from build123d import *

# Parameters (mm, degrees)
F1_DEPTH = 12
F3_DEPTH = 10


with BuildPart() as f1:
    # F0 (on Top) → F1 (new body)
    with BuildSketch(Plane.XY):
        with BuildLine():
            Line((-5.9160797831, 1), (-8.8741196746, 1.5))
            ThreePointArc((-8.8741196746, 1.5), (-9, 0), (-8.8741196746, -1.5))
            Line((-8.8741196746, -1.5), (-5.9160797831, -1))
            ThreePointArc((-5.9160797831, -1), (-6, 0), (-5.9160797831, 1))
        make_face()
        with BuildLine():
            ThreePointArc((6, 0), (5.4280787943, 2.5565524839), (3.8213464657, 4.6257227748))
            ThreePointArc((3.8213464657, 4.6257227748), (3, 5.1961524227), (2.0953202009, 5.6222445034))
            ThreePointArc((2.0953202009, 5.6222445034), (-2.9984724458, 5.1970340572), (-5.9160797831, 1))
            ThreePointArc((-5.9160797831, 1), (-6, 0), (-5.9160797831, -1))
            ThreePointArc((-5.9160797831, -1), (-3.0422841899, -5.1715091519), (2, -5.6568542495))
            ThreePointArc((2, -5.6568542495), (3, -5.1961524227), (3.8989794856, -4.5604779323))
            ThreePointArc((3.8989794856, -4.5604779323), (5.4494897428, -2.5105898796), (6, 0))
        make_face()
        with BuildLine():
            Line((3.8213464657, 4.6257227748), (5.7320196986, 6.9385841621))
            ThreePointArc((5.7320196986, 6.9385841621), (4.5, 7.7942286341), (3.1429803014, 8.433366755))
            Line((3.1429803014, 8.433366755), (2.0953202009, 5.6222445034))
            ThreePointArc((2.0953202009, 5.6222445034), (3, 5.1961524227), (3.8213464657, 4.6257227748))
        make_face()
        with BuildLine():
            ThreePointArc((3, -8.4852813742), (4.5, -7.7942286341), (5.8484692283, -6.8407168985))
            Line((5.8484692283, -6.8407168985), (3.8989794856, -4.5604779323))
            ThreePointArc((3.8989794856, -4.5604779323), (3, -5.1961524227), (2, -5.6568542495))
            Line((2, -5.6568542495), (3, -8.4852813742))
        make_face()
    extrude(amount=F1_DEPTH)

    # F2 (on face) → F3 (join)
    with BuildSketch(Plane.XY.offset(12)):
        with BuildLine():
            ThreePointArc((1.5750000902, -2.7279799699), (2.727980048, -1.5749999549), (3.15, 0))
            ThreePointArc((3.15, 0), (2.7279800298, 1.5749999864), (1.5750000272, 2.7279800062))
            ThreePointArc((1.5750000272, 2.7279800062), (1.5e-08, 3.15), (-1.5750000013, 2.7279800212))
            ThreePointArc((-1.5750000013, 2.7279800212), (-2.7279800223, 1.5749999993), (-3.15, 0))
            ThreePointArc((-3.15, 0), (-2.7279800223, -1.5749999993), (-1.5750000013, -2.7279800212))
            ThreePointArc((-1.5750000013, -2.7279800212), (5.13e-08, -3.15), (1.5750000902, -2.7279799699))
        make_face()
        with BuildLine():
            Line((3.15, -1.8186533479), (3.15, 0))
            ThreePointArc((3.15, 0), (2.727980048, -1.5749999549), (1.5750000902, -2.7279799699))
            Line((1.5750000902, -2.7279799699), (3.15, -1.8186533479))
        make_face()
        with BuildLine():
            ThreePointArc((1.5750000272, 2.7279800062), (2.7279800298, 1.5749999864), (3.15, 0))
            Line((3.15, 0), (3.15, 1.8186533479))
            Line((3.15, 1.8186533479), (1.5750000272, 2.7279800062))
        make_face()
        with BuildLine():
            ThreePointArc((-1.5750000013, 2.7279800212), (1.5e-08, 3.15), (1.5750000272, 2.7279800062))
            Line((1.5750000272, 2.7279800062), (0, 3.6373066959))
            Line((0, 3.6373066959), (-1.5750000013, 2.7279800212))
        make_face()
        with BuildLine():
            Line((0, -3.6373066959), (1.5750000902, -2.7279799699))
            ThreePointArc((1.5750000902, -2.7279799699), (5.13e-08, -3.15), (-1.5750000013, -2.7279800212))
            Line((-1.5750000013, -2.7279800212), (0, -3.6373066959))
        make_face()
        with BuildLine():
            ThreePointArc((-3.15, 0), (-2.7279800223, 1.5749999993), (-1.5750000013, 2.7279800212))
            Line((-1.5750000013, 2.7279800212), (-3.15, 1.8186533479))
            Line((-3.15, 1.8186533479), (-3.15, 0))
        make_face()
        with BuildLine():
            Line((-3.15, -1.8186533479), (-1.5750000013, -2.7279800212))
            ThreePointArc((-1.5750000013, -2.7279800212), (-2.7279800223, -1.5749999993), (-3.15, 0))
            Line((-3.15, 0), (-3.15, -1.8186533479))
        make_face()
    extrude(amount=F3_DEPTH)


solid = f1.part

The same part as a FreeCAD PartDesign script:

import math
import FreeCAD as App
import Part
import Sketcher

V = App.Vector
Q = App.Units.Quantity

doc = App.newDocument("Part")
body = doc.addObject("PartDesign::Body", "Body")

# Sketch on XY plane
sketch1 = body.newObject("Sketcher::SketchObject", "Sketch")
sketch1.AttachmentSupport = (doc.getObject("XY_Plane"), [""])
sketch1.MapMode = "FlatFace"
sketch1.addGeometry([
    Part.LineSegment(V(-5.91608, 1, 0), V(-8.87412, 1.5, 0)),  # 0
    Part.ArcOfCircle(Part.Circle(V(0, 0, 0), V(0, 0, 1), 9), math.radians(170.405932), math.radians(189.594068)),  # 1
    Part.LineSegment(V(-8.87412, -1.5, 0), V(-5.91608, -1, 0)),  # 2
    Part.ArcOfCircle(Part.Circle(V(0, 0, 0), V(0, 0, 1), 6), math.radians(-170.405932), math.radians(-70.528779)),  # 3
    Part.LineSegment(V(2, -5.656854, 0), V(3, -8.485281, 0)),  # 4
    Part.ArcOfCircle(Part.Circle(V(0, 0, 0), V(0, 0, 1), 9), math.radians(-70.528779), math.radians(-49.471221)),  # 5
    Part.LineSegment(V(5.848469, -6.840717, 0), V(3.898979, -4.560478, 0)),  # 6
    Part.ArcOfCircle(Part.Circle(V(0, 0, 0), V(0, 0, 1), 6), math.radians(-49.471221), math.radians(0)),  # 7
    Part.ArcOfCircle(Part.Circle(V(0, 0, 0), V(0, 0, 1), 6), math.radians(0), math.radians(50.439616)),  # 8
    Part.LineSegment(V(3.821346, 4.625723, 0), V(5.73202, 6.938584, 0)),  # 9
    Part.ArcOfCircle(Part.Circle(V(0, 0, 0), V(0, 0, 1), 9), math.radians(50.439616), math.radians(69.560384)),  # 10
    Part.LineSegment(V(3.14298, 8.433367, 0), V(2.09532, 5.622245, 0)),  # 11
    Part.ArcOfCircle(Part.Circle(V(0, 0, 0), V(0, 0, 1), 6), math.radians(69.560384), math.radians(170.405932)),  # 12
], False)
sketch1.addConstraint([
    Sketcher.Constraint("Coincident", 0, 2, 1, 1),
    Sketcher.Constraint("Coincident", 1, 2, 2, 1),
    Sketcher.Constraint("Coincident", 2, 2, 3, 1),
    Sketcher.Constraint("Coincident", 3, 2, 4, 1),
    Sketcher.Constraint("Coincident", 4, 2, 5, 1),
    Sketcher.Constraint("Coincident", 5, 2, 6, 1),
    Sketcher.Constraint("Coincident", 6, 2, 7, 1),
    Sketcher.Constraint("Tangent", 7, 2, 8, 1),
    Sketcher.Constraint("Coincident", 8, 2, 9, 1),
    Sketcher.Constraint("Coincident", 9, 2, 10, 1),
    Sketcher.Constraint("Coincident", 10, 2, 11, 1),
    Sketcher.Constraint("Coincident", 11, 2, 12, 1),
    Sketcher.Constraint("Coincident", 12, 2, 0, 1),
    Sketcher.Constraint("Coincident", 1, 3, -1, 1),
    Sketcher.Constraint("Coincident", 3, 3, -1, 1),
    Sketcher.Constraint("Coincident", 5, 3, -1, 1),
    Sketcher.Constraint("Coincident", 7, 3, -1, 1),
    Sketcher.Constraint("Coincident", 10, 3, -1, 1),
    Sketcher.Constraint("Coincident", 12, 3, -1, 1),
    Sketcher.Constraint("Equal", 1, 5),
    Sketcher.Constraint("Equal", 3, 7),
    Sketcher.Constraint("Equal", 7, 8),
    Sketcher.Constraint("Equal", 5, 10),
    Sketcher.Constraint("Equal", 8, 12),
    Sketcher.Constraint("PointOnObject", 7, 2, -1),
    Sketcher.Constraint("Vertical", 0, 2, 1, 2),
    Sketcher.Constraint("Vertical", 2, 2, 12, 2),
    Sketcher.Constraint("Radius", 1, 9.0),
    Sketcher.Constraint("Radius", 3, 6.0),
    Sketcher.Constraint("DistanceY", 2, 2, -1, 1, 1.0),
    Sketcher.Constraint("DistanceX", -1, 1, 3, 2, 2.0),
    Sketcher.Constraint("DistanceX", -1, 1, 4, 2, 3.0),
    Sketcher.Constraint("DistanceY", 1, 2, 0, 2, 3.0),
    Sketcher.Constraint("DistanceX", 11, 2, 9, 2, 3.636699),
    Sketcher.Constraint("DistanceX", -1, 1, 5, 2, 5.848469),
    Sketcher.Constraint("DistanceX", -1, 1, 6, 2, 3.898979),
    Sketcher.Constraint("DistanceX", -1, 1, 9, 2, 5.73202),
    Sketcher.Constraint("DistanceX", -1, 1, 10, 2, 3.14298),
    Sketcher.Constraint("DistanceY", 8, 2, 9, 2, 2.312861),
])
pad1 = body.newObject("PartDesign::Pad", "Pad")
pad1.Profile = sketch1
pad1.Length = 12

# Sketch on XY plane
sketch2 = body.newObject("Sketcher::SketchObject", "Sketch001")
sketch2.AttachmentSupport = (doc.getObject("XY_Plane"), [""])
sketch2.MapMode = "FlatFace"
sketch2.AttachmentOffset = App.Placement(V(0, 0, 12), App.Rotation())
sketch2.addGeometry([
    Part.LineSegment(V(-1.575, -2.72798, 0), V(0, -3.637307, 0)),  # 0
    Part.LineSegment(V(0, -3.637307, 0), V(1.575, -2.72798, 0)),  # 1
    Part.LineSegment(V(1.575, -2.72798, 0), V(3.15, -1.818653, 0)),  # 2
    Part.LineSegment(V(3.15, -1.818653, 0), V(3.15, 1.818653, 0)),  # 3
    Part.LineSegment(V(3.15, 1.818653, 0), V(1.575, 2.72798, 0)),  # 4
    Part.LineSegment(V(1.575, 2.72798, 0), V(0, 3.637307, 0)),  # 5
    Part.LineSegment(V(0, 3.637307, 0), V(-1.575, 2.72798, 0)),  # 6
    Part.LineSegment(V(-1.575, 2.72798, 0), V(-3.15, 1.818653, 0)),  # 7
    Part.LineSegment(V(-3.15, 1.818653, 0), V(-3.15, -1.818653, 0)),  # 8
    Part.LineSegment(V(-3.15, -1.818653, 0), V(-1.575, -2.72798, 0)),  # 9
], False)
sketch2.addConstraint([
    Sketcher.Constraint("Coincident", 0, 2, 1, 1),
    Sketcher.Constraint("Coincident", 1, 2, 2, 1),
    Sketcher.Constraint("Coincident", 2, 2, 3, 1),
    Sketcher.Constraint("Coincident", 3, 2, 4, 1),
    Sketcher.Constraint("Coincident", 4, 2, 5, 1),
    Sketcher.Constraint("Coincident", 5, 2, 6, 1),
    Sketcher.Constraint("Coincident", 6, 2, 7, 1),
    Sketcher.Constraint("Coincident", 7, 2, 8, 1),
    Sketcher.Constraint("Coincident", 8, 2, 9, 1),
    Sketcher.Constraint("Coincident", 9, 2, 0, 1),
    Sketcher.Constraint("Vertical", 3),
    Sketcher.Constraint("Vertical", 8),
    Sketcher.Constraint("Symmetric", 0, 2, 5, 2, -1, 1),
    Sketcher.Constraint("Symmetric", 1, 2, 6, 2, -1, 1),
    Sketcher.Constraint("Symmetric", 2, 2, 7, 2, -1, 1),
    Sketcher.Constraint("Symmetric", 4, 2, 9, 2, -1, 1),
    Sketcher.Constraint("Symmetric", 4, 2, 6, 2, -2),
    Sketcher.Constraint("PointOnObject", 0, 2, -2),
    Sketcher.Constraint("Parallel", 1, 2),
    Sketcher.Constraint("Parallel", 0, 4),
    Sketcher.Constraint("Parallel", 5, 9),
    Sketcher.Constraint("Equal", 1, 2),
    Sketcher.Constraint("Angle", 0, Q("-30 deg")),
    Sketcher.Constraint("DistanceX", 7, 2, 3, 2, 6.3),
    Sketcher.Constraint("DistanceY", 3, 1, 3, 2, 3.637307),
])
pad2 = body.newObject("PartDesign::Pad", "Pad001")
pad2.Profile = sketch2
pad2.Length = 10

doc.recompute()
